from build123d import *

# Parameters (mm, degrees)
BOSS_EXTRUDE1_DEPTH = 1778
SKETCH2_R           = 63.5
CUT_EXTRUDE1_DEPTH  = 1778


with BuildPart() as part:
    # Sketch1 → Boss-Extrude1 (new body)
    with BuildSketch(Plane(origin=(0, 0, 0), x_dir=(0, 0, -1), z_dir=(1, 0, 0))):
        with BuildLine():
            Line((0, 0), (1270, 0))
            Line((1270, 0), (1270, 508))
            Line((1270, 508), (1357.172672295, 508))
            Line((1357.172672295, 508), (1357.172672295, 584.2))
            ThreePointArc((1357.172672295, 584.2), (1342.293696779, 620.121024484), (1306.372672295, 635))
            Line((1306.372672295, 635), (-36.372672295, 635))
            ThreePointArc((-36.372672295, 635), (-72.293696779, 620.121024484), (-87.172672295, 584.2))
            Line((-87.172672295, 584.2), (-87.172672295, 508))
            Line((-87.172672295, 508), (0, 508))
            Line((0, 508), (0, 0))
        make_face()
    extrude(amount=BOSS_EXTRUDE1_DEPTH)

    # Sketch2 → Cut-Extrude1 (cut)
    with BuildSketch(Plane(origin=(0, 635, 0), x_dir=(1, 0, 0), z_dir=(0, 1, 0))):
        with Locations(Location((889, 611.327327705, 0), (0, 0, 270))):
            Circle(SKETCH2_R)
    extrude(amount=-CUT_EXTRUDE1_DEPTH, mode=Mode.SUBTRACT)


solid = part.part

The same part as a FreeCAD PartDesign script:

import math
import FreeCAD as App
import Part
import Sketcher

V = App.Vector
Q = App.Units.Quantity

doc = App.newDocument("Part")
body = doc.addObject("PartDesign::Body", "Body")

# Sketch on YZ plane
sketch1 = body.newObject("Sketcher::SketchObject", "Sketch")
sketch1.AttachmentSupport = (doc.getObject("YZ_Plane"), [""])
sketch1.MapMode = "FlatFace"
sketch1.addGeometry(Part.LineSegment(V(0, 0, 0), V(0, -1270, 0)), False)
sketch1.addGeometry(Part.LineSegment(V(0, -1270, 0), V(508, -1270, 0)), False)
sketch1.addGeometry(Part.LineSegment(V(508, -1270, 0), V(508, -1357.172672, 0)), False)
sketch1.addGeometry(Part.LineSegment(V(508, -1357.172672, 0), V(584.2, -1357.172672, 0)), False)
sketch1.addGeometry(Part.ArcOfCircle(Part.Circle(V(584.2, -1306.372672, 0), V(0, 0, 1), 50.8), math.radians(-90), math.radians(0)), False)
sketch1.addGeometry(Part.LineSegment(V(635, -1306.372672, 0), V(635, 36.372672, 0)), False)
sketch1.addGeometry(Part.ArcOfCircle(Part.Circle(V(584.2, 36.372672, 0), V(0, 0, 1), 50.8), math.radians(0), math.radians(90)), False)
sketch1.addGeometry(Part.LineSegment(V(584.2, 87.172672, 0), V(508, 87.172672, 0)), False)
sketch1.addGeometry(Part.LineSegment(V(508, 87.172672, 0), V(508, 0, 0)), False)
sketch1.addGeometry(Part.LineSegment(V(508, 0, 0), V(0, 0, 0)), False)
sketch1.addConstraint(Sketcher.Constraint("Coincident", 0, 2, 1, 1))
sketch1.addConstraint(Sketcher.Constraint("Coincident", 1, 2, 2, 1))
sketch1.addConstraint(Sketcher.Constraint("Coincident", 2, 2, 3, 1))
sketch1.addConstraint(Sketcher.Constraint("Tangent", 3, 2, 4, 1))
sketch1.addConstraint(Sketcher.Constraint("Tangent", 4, 2, 5, 1))
sketch1.addConstraint(Sketcher.Constraint("Tangent", 5, 2, 6, 1))
sketch1.addConstraint(Sketcher.Constraint("Tangent", 6, 2, 7, 1))
sketch1.addConstraint(Sketcher.Constraint("Coincident", 7, 2, 8, 1))
sketch1.addConstraint(Sketcher.Constraint("Coincident", 8, 2, 9, 1))
sketch1.addConstraint(Sketcher.Constraint("Coincident", 9, 2, 0, 1))
sketch1.addConstraint(Sketcher.Constraint("Vertical", 0))
sketch1.addConstraint(Sketcher.Constraint("Horizontal", 1))
sketch1.addConstraint(Sketcher.Constraint("Vertical", 2))
sketch1.addConstraint(Sketcher.Constraint("Horizontal", 3))
sketch1.addConstraint(Sketcher.Constraint("Vertical", 5))
sketch1.addConstraint(Sketcher.Constraint("Horizontal", 7))
sketch1.addConstraint(Sketcher.Constraint("Vertical", 8))
sketch1.addConstraint(Sketcher.Constraint("Horizontal", 9))
sketch1.addConstraint(Sketcher.Constraint("Coincident", 9, 2, -1, 1))
sketch1.addConstraint(Sketcher.Constraint("Equal", 4, 6))
sketch1.addConstraint(Sketcher.Constraint("Vertical", 2, 2, 7, 2))
sketch1.addConstraint(Sketcher.Constraint("Equal", 2, 8))
sketch1.addConstraint(Sketcher.Constraint("Radius", 4, Q("2 in")))
sketch1.addConstraint(Sketcher.Constraint("DistanceX", 1, 1, 1, 2, Q("20 in")))
sketch1.addConstraint(Sketcher.Constraint("DistanceX", 3, 1, 3, 2, Q("3 in")))
sketch1.addConstraint(Sketcher.Constraint("DistanceY", 0, 2, 0, 1, Q("50 in")))
sketch1.addConstraint(Sketcher.Constraint("DistanceY", 2, 2, 2, 1, Q("87.172672 mm")))
pad1 = body.newObject("PartDesign::Pad", "Pad")
pad1.Profile = sketch1
pad1.Length = Q("70 in")

# Sketch on XZ plane
sketch2 = body.newObject("Sketcher::SketchObject", "Sketch001")
sketch2.AttachmentSupport = (doc.getObject("XZ_Plane"), [""])
sketch2.MapMode = "FlatFace"
sketch2.AttachmentOffset = App.Placement(V(0, 0, -25 * 25.4), App.Rotation())
sketch2.addGeometry(Part.Circle(V(889, -611.327328, 0), V(0, 0, 1), 63.5), False)
sketch2.addConstraint(Sketcher.Constraint("Diameter", 0, Q("5 in")))
sketch2.addConstraint(Sketcher.Constraint("DistanceX", -1, 1, 0, 3, Q("35 in")))
sketch2.addConstraint(Sketcher.Constraint("DistanceY", 0, 3, -1, 1, Q("611.327328 mm")))
pocket1 = body.newObject("PartDesign::Pocket", "Pocket")
pocket1.Profile = sketch2
pocket1.Length = Q("70 in")
pocket1.Reversed = True

doc.recompute()
